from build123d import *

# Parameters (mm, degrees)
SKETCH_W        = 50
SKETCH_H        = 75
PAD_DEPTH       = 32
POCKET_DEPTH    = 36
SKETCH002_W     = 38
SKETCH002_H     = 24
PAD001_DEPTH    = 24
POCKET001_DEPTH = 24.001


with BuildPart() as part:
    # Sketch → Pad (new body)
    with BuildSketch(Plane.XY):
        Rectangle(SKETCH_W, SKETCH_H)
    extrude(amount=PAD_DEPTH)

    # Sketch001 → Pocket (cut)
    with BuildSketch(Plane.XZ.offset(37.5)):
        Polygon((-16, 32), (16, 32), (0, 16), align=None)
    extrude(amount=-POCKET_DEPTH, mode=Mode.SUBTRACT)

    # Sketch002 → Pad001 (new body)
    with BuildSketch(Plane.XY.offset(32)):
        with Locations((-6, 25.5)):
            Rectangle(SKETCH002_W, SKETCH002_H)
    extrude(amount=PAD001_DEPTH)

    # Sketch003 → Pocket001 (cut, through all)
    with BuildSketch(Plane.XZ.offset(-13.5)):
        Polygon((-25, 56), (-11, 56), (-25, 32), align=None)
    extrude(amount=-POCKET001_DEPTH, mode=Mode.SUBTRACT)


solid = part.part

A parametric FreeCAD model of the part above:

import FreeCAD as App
import Part
import Sketcher
from FreeCAD import Vector

doc = App.newDocument("Part")
params = doc.addObject("Spreadsheet::Sheet", "Params")
for row, (alias, value) in enumerate([
    ("sketch1_width", "50 mm"),
    ("sketch1_height", "75 mm"),
    ("pad1_length", "32 mm"),
    ("sketch2_width", "32 mm"),
    ("pocket1_length", "36 mm"),
    ("sketch3_width", "38 mm"),
    ("sketch3_height", "24 mm"),
    ("pad2_length", "24 mm"),
    ("sketch4_width", "14 mm"),
    ("sketch4_height", "24 mm"),
], start=1):
    params.set(f"A{row}", alias)
    params.set(f"B{row}", "=" + value)
    params.setAlias(f"B{row}", alias)

body = doc.addObject("PartDesign::Body", "Body")

# Sketch on XY plane
sketch1 = body.newObject("Sketcher::SketchObject", "Sketch")
sketch1.AttachmentSupport = (doc.getObject("XY_Plane"), [""])
sketch1.MapMode = "FlatFace"
sketch1.addGeometry(Part.LineSegment(Vector(-25, 38, 0), Vector(-25, -38, 0)), False)
sketch1.addGeometry(Part.LineSegment(Vector(-25, -38, 0), Vector(25, -38, 0)), False)
sketch1.addGeometry(Part.LineSegment(Vector(25, -38, 0), Vector(25, 38, 0)), False)
sketch1.addGeometry(Part.LineSegment(Vector(25, 38, 0), Vector(-25, 38, 0)), False)
sketch1.addConstraint(Sketcher.Constraint("Coincident", 0, 2, 1, 1))
sketch1.addConstraint(Sketcher.Constraint("Coincident", 1, 2, 2, 1))
sketch1.addConstraint(Sketcher.Constraint("Coincident", 2, 2, 3, 1))
sketch1.addConstraint(Sketcher.Constraint("Coincident", 3, 2, 0, 1))
sketch1.addConstraint(Sketcher.Constraint("Vertical", 0))
sketch1.addConstraint(Sketcher.Constraint("Horizontal", 1))
sketch1.addConstraint(Sketcher.Constraint("Vertical", 2))
sketch1.addConstraint(Sketcher.Constraint("Horizontal", 3))
sketch1.addConstraint(Sketcher.Constraint("Symmetric", 0, 2, 2, 2, -1, 1))
sketch1.addConstraint(Sketcher.Constraint("DistanceX", 1, 1, 1, 2, 50.0))
sketch1.addConstraint(Sketcher.Constraint("DistanceY", 0, 2, 0, 1, 75.0))
sketch1.setExpression("Constraints[9]", "Params.sketch1_width")
sketch1.setExpression("Constraints[10]", "Params.sketch1_height")
pad1 = body.newObject("PartDesign::Pad", "Pad")
pad1.Profile = sketch1
pad1.setExpression("Length", "Params.pad1_length")

# Sketch on XZ plane
sketch2 = body.newObject("Sketcher::SketchObject", "Sketch001")
sketch2.AttachmentSupport = (doc.getObject("XZ_Plane"), [""])
sketch2.MapMode = "FlatFace"
sketch2.AttachmentOffset = App.Placement(Vector(0, 0, 37.5), App.Rotation())
sketch2.addGeometry(Part.LineSegment(Vector(16, 32, 0), Vector(-16, 32, 0)), False)
sketch2.addGeometry(Part.LineSegment(Vector(-16, 32, 0), Vector(0, 16, 0)), False)
sketch2.addGeometry(Part.LineSegment(Vector(0, 16, 0), Vector(16, 32, 0)), False)
sketch2.addConstraint(Sketcher.Constraint("Coincident", 0, 2, 1, 1))
sketch2.addConstraint(Sketcher.Constraint("Coincident", 1, 2, 2, 1))
sketch2.addConstraint(Sketcher.Constraint("Coincident", 2, 2, 0, 1))
sketch2.addConstraint(Sketcher.Constraint("Horizontal", 0))
sketch2.addConstraint(Sketcher.Constraint("PointOnObject", 1, 2, -2))
sketch2.addConstraint(Sketcher.Constraint("Perpendicular", 1, 2))
sketch2.addConstraint(Sketcher.Constraint("Equal", 1, 2))
sketch2.addConstraint(Sketcher.Constraint("DistanceX", 0, 2, 0, 1, 32.0))
sketch2.addConstraint(Sketcher.Constraint("DistanceY", -1, 1, 0, 2, 32.0))
sketch2.setExpression("Constraints[7]", "Params.sketch2_width")
pocket1 = body.newObject("PartDesign::Pocket", "Pocket")
pocket1.Profile = sketch2
pocket1.setExpression("Length", "Params.pocket1_length")

# Sketch on XY plane
sketch3 = body.newObject("Sketcher::SketchObject", "Sketch002")
sketch3.AttachmentSupport = (doc.getObject("XY_Plane"), [""])
sketch3.MapMode = "FlatFace"
sketch3.AttachmentOffset = App.Placement(Vector(0, 0, 32), App.Rotation())
sketch3.addGeometry(Part.LineSegment(Vector(-25, 38, 0), Vector(-25, 14, 0)), False)
sketch3.addGeometry(Part.LineSegment(Vector(-25, 14, 0), Vector(13, 14, 0)), False)
sketch3.addGeometry(Part.LineSegment(Vector(13, 14, 0), Vector(13, 38, 0)), False)
sketch3.addGeometry(Part.LineSegment(Vector(13, 38, 0), Vector(-25, 38, 0)), False)
sketch3.addConstraint(Sketcher.Constraint("Coincident", 0, 2, 1, 1))
sketch3.addConstraint(Sketcher.Constraint("Coincident", 1, 2, 2, 1))
sketch3.addConstraint(Sketcher.Constraint("Coincident", 2, 2, 3, 1))
sketch3.addConstraint(Sketcher.Constraint("Coincident", 3, 2, 0, 1))
sketch3.addConstraint(Sketcher.Constraint("Vertical", 0))
sketch3.addConstraint(Sketcher.Constraint("Horizontal", 1))
sketch3.addConstraint(Sketcher.Constraint("Vertical", 2))
sketch3.addConstraint(Sketcher.Constraint("Horizontal", 3))
sketch3.addConstraint(Sketcher.Constraint("DistanceX", 1, 1, 1, 2, 38.0))
sketch3.addConstraint(Sketcher.Constraint("DistanceY", 0, 2, 0, 1, 24.0))
sketch3.addConstraint(Sketcher.Constraint("DistanceX", 0, 2, -1, 1, 25.0))
sketch3.addConstraint(Sketcher.Constraint("DistanceY", -1, 1, 0, 2, 13.5))
sketch3.setExpression("Constraints[8]", "Params.sketch3_width")
sketch3.setExpression("Constraints[9]", "Params.sketch3_height")
pad2 = body.newObject("PartDesign::Pad", "Pad001")
pad2.Profile = sketch3
pad2.setExpression("Length", "Params.pad2_length")

# Sketch on XZ plane
sketch4 = body.newObject("Sketcher::SketchObject", "Sketch003")
sketch4.AttachmentSupport = (doc.getObject("XZ_Plane"), [""])
sketch4.MapMode = "FlatFace"
sketch4.AttachmentOffset = App.Placement(Vector(0, 0, -13.5), App.Rotation())
sketch4.addGeometry(Part.LineSegment(Vector(-11, 56, 0), Vector(-25, 56, 0)), False)
sketch4.addGeometry(Part.LineSegment(Vector(-25, 56, 0), Vector(-25, 32, 0)), False)
sketch4.addGeometry(Part.LineSegment(Vector(-25, 32, 0), Vector(-11, 56, 0)), False)
sketch4.addConstraint(Sketcher.Constraint("Coincident", 0, 2, 1, 1))
sketch4.addConstraint(Sketcher.Constraint("Coincident", 1, 2, 2, 1))
sketch4.addConstraint(Sketcher.Constraint("Coincident", 2, 2, 0, 1))
sketch4.addConstraint(Sketcher.Constraint("Horizontal", 0))
sketch4.addConstraint(Sketcher.Constraint("Vertical", 1))
sketch4.addConstraint(Sketcher.Constraint("DistanceX", 0, 2, 0, 1, 14.0))
sketch4.addConstraint(Sketcher.Constraint("DistanceY", 1, 2, 1, 1, 24.0))
sketch4.addConstraint(Sketcher.Constraint("DistanceX", 0, 2, -1, 1, 25.0))
sketch4.addConstraint(Sketcher.Constraint("DistanceY", -1, 1, 0, 2, 56.0))
sketch4.setExpression("Constraints[5]", "Params.sketch4_width")
sketch4.setExpression("Constraints[6]", "Params.sketch4_height")
pocket2 = body.newObject("PartDesign::Pocket", "Pocket001")
pocket2.Profile = sketch4
pocket2.Type = "ThroughAll"

doc.recompute()
